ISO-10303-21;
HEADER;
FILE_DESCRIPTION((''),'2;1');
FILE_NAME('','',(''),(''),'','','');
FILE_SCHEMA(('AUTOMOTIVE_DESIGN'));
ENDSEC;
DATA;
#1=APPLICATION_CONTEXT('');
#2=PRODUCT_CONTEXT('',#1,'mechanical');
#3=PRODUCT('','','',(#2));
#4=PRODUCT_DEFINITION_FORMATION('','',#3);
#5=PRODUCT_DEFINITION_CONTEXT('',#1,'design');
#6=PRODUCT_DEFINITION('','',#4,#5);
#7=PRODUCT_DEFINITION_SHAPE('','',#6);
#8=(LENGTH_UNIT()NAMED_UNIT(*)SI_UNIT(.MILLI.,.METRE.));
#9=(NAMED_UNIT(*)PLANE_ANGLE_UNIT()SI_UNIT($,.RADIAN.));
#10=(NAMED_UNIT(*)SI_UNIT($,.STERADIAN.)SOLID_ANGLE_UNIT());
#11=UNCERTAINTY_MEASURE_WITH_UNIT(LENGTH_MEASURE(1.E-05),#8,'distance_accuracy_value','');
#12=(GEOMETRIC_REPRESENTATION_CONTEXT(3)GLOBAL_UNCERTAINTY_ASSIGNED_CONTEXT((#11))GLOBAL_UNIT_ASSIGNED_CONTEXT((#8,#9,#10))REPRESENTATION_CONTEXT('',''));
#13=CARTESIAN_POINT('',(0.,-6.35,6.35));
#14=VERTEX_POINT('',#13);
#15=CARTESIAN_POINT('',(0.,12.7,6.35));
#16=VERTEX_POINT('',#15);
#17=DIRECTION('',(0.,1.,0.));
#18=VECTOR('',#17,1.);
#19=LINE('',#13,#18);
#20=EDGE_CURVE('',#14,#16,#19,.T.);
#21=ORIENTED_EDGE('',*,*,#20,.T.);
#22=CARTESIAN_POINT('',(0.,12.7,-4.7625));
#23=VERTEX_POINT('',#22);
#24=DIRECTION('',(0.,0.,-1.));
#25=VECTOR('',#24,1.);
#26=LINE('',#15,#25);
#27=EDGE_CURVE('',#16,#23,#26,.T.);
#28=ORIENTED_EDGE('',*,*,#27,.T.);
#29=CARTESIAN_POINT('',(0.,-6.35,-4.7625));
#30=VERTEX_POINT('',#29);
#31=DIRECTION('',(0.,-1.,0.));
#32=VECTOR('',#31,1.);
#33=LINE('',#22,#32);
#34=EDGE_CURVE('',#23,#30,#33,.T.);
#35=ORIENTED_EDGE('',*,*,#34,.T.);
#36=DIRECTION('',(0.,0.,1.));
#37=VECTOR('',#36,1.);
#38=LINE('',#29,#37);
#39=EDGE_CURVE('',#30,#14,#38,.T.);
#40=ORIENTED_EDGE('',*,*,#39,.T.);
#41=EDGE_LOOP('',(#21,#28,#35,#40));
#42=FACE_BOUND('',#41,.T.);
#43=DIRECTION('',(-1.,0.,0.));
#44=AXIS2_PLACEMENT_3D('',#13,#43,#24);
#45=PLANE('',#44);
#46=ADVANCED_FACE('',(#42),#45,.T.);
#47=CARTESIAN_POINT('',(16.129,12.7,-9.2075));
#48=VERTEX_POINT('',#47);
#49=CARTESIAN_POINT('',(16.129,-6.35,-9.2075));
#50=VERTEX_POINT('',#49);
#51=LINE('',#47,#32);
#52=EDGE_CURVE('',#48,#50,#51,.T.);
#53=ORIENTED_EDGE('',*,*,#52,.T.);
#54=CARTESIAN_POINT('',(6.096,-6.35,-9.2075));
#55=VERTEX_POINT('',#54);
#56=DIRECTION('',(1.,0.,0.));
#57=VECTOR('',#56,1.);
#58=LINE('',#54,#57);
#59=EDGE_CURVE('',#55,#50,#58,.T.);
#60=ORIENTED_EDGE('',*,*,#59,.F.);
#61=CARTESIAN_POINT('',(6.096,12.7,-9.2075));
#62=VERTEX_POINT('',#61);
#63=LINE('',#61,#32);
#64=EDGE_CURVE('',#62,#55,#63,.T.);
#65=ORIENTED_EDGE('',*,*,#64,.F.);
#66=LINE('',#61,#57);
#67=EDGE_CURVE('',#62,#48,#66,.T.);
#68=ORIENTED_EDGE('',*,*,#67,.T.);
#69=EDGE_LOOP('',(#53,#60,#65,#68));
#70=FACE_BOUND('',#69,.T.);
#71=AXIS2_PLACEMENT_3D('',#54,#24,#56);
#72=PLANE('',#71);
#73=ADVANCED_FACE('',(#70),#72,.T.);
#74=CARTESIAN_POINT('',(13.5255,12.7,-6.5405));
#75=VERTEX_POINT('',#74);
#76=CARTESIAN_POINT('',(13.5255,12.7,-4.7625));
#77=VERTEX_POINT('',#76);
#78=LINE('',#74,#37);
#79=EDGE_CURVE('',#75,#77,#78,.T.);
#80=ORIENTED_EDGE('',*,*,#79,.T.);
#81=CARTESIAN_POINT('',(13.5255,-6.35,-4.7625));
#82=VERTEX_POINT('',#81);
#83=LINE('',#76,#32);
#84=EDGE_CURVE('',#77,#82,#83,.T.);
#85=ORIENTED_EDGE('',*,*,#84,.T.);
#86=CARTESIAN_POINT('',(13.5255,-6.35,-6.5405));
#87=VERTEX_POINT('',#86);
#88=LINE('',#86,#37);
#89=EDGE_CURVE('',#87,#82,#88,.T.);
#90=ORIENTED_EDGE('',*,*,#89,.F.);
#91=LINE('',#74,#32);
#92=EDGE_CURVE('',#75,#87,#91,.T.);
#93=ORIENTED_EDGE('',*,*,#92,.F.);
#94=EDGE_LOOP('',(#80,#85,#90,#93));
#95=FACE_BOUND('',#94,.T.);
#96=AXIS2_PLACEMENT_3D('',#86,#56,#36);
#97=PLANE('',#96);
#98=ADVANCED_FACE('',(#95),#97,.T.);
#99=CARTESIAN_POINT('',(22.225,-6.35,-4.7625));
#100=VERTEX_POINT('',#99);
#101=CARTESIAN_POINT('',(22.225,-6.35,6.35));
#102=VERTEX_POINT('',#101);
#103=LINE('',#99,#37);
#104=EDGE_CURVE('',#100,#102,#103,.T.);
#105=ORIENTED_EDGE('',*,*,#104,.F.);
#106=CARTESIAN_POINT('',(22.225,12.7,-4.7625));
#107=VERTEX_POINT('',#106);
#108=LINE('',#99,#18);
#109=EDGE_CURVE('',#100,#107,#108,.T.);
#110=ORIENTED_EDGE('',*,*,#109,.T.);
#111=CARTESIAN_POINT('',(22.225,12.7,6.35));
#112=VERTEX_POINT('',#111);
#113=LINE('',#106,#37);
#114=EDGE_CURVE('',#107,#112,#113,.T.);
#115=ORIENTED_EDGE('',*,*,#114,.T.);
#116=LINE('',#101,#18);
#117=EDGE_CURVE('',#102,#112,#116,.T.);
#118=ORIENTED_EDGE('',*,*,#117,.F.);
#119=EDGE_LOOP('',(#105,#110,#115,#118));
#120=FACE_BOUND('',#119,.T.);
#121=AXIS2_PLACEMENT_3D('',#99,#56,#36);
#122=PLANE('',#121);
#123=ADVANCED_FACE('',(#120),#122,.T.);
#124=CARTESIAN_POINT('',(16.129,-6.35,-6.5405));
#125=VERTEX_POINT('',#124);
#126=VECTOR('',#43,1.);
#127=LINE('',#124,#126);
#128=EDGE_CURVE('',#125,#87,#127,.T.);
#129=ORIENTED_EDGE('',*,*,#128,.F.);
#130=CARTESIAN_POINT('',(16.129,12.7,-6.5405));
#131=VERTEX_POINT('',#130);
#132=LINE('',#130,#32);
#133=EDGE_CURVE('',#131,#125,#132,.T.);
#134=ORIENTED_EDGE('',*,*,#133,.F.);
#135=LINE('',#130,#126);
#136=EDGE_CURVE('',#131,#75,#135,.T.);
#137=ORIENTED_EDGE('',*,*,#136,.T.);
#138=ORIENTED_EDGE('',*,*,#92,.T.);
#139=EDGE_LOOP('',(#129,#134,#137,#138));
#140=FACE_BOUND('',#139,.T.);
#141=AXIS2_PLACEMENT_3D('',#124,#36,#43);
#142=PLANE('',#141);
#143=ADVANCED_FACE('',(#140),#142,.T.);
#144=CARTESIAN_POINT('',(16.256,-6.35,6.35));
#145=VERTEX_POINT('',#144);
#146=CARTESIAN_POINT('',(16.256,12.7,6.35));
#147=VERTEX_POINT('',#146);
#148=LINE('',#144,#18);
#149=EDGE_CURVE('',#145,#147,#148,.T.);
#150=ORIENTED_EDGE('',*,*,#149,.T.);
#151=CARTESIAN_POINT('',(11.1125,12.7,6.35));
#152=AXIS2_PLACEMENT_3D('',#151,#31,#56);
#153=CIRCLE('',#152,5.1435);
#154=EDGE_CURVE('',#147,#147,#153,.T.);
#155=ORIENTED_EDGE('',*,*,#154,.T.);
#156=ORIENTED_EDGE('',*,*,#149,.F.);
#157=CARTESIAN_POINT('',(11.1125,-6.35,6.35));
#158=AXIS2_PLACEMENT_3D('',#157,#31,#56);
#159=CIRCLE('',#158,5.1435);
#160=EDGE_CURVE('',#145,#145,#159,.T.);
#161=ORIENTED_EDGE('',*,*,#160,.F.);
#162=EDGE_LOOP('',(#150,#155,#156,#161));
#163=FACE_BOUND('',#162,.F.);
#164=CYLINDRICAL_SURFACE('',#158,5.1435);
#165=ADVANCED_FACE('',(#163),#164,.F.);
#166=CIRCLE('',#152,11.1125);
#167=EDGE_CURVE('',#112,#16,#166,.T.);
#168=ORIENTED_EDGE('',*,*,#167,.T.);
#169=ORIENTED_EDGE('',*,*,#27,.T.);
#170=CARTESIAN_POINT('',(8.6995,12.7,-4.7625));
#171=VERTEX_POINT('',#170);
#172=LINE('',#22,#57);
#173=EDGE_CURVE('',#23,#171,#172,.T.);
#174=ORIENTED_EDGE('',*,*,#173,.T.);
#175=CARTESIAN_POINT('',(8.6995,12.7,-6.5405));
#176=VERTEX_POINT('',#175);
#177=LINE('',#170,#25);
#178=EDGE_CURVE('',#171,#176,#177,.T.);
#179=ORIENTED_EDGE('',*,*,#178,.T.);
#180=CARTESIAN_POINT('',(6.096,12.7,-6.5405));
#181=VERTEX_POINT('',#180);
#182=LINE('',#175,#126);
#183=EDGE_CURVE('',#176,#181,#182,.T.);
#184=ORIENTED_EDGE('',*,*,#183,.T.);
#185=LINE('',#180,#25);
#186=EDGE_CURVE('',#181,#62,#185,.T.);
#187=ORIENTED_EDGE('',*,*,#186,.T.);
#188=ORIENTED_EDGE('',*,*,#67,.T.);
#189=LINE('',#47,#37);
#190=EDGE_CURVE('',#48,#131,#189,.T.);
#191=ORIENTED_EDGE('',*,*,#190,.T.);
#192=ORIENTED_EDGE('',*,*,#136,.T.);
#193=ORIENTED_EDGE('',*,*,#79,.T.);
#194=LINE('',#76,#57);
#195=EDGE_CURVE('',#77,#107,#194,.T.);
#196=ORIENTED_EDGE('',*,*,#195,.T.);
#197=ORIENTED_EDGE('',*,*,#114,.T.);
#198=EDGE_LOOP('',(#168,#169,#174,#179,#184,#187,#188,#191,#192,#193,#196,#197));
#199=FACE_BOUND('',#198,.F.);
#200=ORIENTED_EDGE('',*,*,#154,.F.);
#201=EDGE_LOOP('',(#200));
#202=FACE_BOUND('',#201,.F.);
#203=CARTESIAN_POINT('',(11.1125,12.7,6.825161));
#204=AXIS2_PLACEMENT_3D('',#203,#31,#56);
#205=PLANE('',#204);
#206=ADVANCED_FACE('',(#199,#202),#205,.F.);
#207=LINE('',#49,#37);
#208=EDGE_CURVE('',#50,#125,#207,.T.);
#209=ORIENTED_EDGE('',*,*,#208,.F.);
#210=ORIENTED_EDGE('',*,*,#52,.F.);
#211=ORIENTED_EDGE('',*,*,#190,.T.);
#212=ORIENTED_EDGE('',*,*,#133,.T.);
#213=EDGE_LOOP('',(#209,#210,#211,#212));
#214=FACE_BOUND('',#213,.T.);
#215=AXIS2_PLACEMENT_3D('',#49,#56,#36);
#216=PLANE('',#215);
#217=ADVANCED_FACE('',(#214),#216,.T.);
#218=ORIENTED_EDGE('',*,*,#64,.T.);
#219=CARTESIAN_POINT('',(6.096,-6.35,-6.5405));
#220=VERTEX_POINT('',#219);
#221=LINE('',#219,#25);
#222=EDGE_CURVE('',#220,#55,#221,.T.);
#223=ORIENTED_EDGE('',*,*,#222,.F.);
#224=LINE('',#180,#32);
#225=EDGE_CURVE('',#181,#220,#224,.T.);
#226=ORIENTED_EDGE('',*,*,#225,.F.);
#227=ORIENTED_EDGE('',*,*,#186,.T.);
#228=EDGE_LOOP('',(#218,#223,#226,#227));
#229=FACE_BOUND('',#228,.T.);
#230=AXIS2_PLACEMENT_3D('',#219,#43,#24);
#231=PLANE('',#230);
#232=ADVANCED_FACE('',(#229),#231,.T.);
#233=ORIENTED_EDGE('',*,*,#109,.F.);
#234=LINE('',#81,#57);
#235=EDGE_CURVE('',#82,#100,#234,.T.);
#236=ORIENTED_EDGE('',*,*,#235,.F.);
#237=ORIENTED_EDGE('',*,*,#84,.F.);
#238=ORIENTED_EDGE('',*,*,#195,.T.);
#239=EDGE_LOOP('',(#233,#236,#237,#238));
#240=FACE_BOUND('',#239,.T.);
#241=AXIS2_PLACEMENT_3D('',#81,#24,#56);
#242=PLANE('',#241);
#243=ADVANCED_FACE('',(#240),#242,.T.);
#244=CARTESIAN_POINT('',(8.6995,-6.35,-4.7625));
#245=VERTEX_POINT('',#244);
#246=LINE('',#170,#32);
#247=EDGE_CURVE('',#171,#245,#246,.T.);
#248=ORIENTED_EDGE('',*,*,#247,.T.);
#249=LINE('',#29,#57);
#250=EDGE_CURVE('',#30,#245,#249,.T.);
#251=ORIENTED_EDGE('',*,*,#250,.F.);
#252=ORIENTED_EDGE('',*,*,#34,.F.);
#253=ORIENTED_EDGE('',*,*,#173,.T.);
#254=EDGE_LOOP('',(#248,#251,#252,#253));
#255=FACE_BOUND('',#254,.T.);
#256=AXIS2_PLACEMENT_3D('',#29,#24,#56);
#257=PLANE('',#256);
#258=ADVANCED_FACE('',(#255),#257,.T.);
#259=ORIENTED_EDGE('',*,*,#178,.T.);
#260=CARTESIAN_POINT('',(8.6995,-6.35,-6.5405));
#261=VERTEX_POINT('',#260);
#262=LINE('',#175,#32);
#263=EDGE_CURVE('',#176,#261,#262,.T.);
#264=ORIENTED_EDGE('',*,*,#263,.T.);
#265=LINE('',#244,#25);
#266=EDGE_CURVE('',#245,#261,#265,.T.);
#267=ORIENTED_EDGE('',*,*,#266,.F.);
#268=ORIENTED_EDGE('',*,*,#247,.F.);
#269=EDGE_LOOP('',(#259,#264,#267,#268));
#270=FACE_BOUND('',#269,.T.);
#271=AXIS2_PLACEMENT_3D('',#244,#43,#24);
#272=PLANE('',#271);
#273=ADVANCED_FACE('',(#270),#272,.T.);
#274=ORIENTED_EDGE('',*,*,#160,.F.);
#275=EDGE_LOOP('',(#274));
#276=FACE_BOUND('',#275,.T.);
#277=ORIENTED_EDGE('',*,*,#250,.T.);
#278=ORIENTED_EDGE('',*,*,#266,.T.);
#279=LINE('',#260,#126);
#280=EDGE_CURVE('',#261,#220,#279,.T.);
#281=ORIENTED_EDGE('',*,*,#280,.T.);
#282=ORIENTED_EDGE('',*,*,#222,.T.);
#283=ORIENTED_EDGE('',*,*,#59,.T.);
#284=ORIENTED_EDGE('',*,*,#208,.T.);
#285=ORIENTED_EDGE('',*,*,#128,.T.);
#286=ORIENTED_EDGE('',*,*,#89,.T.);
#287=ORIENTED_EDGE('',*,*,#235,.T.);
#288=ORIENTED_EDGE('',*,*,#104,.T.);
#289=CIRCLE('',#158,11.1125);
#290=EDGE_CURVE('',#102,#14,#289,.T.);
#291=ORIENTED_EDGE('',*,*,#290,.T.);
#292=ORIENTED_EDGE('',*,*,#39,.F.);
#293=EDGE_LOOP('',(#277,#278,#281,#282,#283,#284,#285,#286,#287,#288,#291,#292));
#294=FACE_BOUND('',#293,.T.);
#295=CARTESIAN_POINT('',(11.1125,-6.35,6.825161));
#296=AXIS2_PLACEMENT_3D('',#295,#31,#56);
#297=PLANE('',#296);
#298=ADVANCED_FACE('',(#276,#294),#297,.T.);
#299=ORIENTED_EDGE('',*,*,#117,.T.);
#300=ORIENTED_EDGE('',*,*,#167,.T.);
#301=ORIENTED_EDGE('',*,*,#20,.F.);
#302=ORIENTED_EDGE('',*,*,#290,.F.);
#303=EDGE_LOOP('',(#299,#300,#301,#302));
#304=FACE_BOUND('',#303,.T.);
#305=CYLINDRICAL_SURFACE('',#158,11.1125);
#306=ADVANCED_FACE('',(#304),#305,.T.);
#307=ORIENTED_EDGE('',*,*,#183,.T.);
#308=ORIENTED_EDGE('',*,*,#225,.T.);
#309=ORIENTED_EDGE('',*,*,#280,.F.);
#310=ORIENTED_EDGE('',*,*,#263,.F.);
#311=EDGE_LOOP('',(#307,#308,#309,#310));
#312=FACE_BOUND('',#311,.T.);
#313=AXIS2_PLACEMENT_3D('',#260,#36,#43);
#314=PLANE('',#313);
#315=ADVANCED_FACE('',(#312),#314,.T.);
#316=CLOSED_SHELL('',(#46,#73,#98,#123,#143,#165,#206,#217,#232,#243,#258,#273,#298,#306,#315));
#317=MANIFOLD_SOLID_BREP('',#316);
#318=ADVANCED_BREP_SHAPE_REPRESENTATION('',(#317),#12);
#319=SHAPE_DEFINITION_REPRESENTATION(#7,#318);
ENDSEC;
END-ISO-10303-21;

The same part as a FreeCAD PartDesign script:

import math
import FreeCAD as App
import Part
import Sketcher
Q = App.Units.Quantity


def add_polygon(sketch, points):
    """Adds a closed chain of lines whose ends are joined by coincident constraints."""
    first, n = sketch.GeometryCount, len(points)
    for a, b in zip(points, points[1:] + points[:1]):
        sketch.addGeometry(Part.LineSegment(App.Vector(*a, 0), App.Vector(*b, 0)), False)
    for i in range(n):
        sketch.addConstraint(Sketcher.Constraint("Coincident", first + i, 2, first + (i + 1) % n, 1))

doc = App.newDocument("Part")
body = doc.addObject("PartDesign::Body", "Body")

# Sketch on XZ plane
sketch1 = body.newObject("Sketcher::SketchObject", "Sketch")
sketch1.AttachmentSupport = (doc.getObject("XZ_Plane"), [""])
sketch1.MapMode = "FlatFace"
add_polygon(sketch1, [(22.2, 0), (0, 0), (0, -4.8), (8.7, -4.8), (8.7, -6.5), (6.1, -6.5), (6.1, -9.2), (16.1, -9.2), (16.1, -6.5), (13.5, -6.5), (13.5, -4.8), (22.2, -4.8)])  # lines 0-11
sketch1.addConstraint([
    Sketcher.Constraint("Horizontal", 0),
    Sketcher.Constraint("Vertical", 1),
    Sketcher.Constraint("Horizontal", 2),
    Sketcher.Constraint("Vertical", 3),
    Sketcher.Constraint("Horizontal", 4),
    Sketcher.Constraint("Vertical", 5),
    Sketcher.Constraint("Horizontal", 6),
    Sketcher.Constraint("Vertical", 7),
    Sketcher.Constraint("Horizontal", 8),
    Sketcher.Constraint("Vertical", 9),
    Sketcher.Constraint("Horizontal", 10),
    Sketcher.Constraint("Vertical", 11),
    Sketcher.Constraint("Coincident", 0, 2, -1, 1),
    Sketcher.Constraint("Horizontal", 4, 2, 7, 2),
    Sketcher.Constraint("Horizontal", 2, 2, 9, 2),
    Sketcher.Constraint("Equal", 4, 8),
    Sketcher.Constraint("Equal", 2, 10),
    Sketcher.Constraint("DistanceY", 3, 2, 3, 1, Q("0.07 in")),
    Sketcher.Constraint("DistanceX", 0, 2, 0, 1, Q("0.875 in")),
    Sketcher.Constraint("DistanceX", 6, 1, 6, 2, Q("0.395 in")),
    Sketcher.Constraint("DistanceY", 1, 2, 1, 1, Q("0.1875 in")),
    Sketcher.Constraint("DistanceY", 5, 2, 5, 1, Q("0.105 in")),
    Sketcher.Constraint("DistanceX", 3, 2, 8, 2, Q("0.19 in")),
])
pad1 = body.newObject("PartDesign::Pad", "Pad")
pad1.Profile = sketch1
pad1.Length = Q("0.25 in")

# Sketch on XZ plane
sketch2 = body.newObject("Sketcher::SketchObject", "Sketch001")
sketch2.AttachmentSupport = (doc.getObject("XZ_Plane"), [""])
sketch2.MapMode = "FlatFace"
sketch2.AttachmentOffset = App.Placement(App.Vector(0, 0, 0.25 * 25.4), App.Rotation())
sketch2.addGeometry([
    Part.LineSegment(App.Vector(0, 6.3, 0), App.Vector(0, -4.8, 0)),  # 0
    Part.LineSegment(App.Vector(0, -4.8, 0), App.Vector(8.7, -4.8, 0)),  # 1
    Part.LineSegment(App.Vector(8.7, -4.8, 0), App.Vector(8.7, -6.5, 0)),  # 2
    Part.LineSegment(App.Vector(8.7, -6.5, 0), App.Vector(6.1, -6.5, 0)),  # 3
    Part.LineSegment(App.Vector(6.1, -6.5, 0), App.Vector(6.1, -9.2, 0)),  # 4
    Part.LineSegment(App.Vector(6.1, -9.2, 0), App.Vector(16.1, -9.2, 0)),  # 5
    Part.LineSegment(App.Vector(16.1, -9.2, 0), App.Vector(16.1, -6.5, 0)),  # 6
    Part.LineSegment(App.Vector(16.1, -6.5, 0), App.Vector(13.5, -6.5, 0)),  # 7
    Part.LineSegment(App.Vector(13.5, -6.5, 0), App.Vector(13.5, -4.8, 0)),  # 8
    Part.LineSegment(App.Vector(13.5, -4.8, 0), App.Vector(22.2, -4.8, 0)),  # 9
    Part.LineSegment(App.Vector(22.2, -4.8, 0), App.Vector(22.2, 6.3, 0)),  # 10
    Part.ArcOfCircle(Part.Circle(App.Vector(11.1, 6.3, 0), App.Vector(0, 0, 1), 11.1), math.radians(0), math.radians(180)),  # 11
    Part.Circle(App.Vector(11.1, 6.3, 0), App.Vector(0, 0, 1), 5.1),  # 12
], False)
sketch2.addConstraint([
    Sketcher.Constraint("Coincident", 0, 2, 1, 1),
    Sketcher.Constraint("Coincident", 1, 2, 2, 1),
    Sketcher.Constraint("Coincident", 2, 2, 3, 1),
    Sketcher.Constraint("Coincident", 3, 2, 4, 1),
    Sketcher.Constraint("Coincident", 4, 2, 5, 1),
    Sketcher.Constraint("Coincident", 5, 2, 6, 1),
    Sketcher.Constraint("Coincident", 6, 2, 7, 1),
    Sketcher.Constraint("Coincident", 7, 2, 8, 1),
    Sketcher.Constraint("Coincident", 8, 2, 9, 1),
    Sketcher.Constraint("Coincident", 9, 2, 10, 1),
    Sketcher.Constraint("Tangent", 10, 2, 11, 1),
    Sketcher.Constraint("Tangent", 11, 2, 0, 1),
    Sketcher.Constraint("Vertical", 0),
    Sketcher.Constraint("Horizontal", 1),
    Sketcher.Constraint("Vertical", 2),
    Sketcher.Constraint("Horizontal", 3),
    Sketcher.Constraint("Vertical", 4),
    Sketcher.Constraint("Horizontal", 5),
    Sketcher.Constraint("Vertical", 6),
    Sketcher.Constraint("Horizontal", 7),
    Sketcher.Constraint("Vertical", 8),
    Sketcher.Constraint("Horizontal", 9),
    Sketcher.Constraint("Vertical", 10),
    Sketcher.Constraint("Coincident", 12, 3, 11, 3),
    Sketcher.Constraint("PointOnObject", 0, 2, -2),
    Sketcher.Constraint("Horizontal", 3, 2, 6, 2),
    Sketcher.Constraint("Horizontal", 1, 2, 8, 2),
    Sketcher.Constraint("Equal", 3, 7),
    Sketcher.Constraint("Equal", 1, 9),
    Sketcher.Constraint("Diameter", 12, Q("0.405 in")),
    Sketcher.Constraint("Radius", 11, Q("0.4375 in")),
    Sketcher.Constraint("DistanceY", 2, 2, 2, 1, Q("0.07 in")),
    Sketcher.Constraint("DistanceX", 5, 1, 5, 2, Q("0.395 in")),
    Sketcher.Constraint("DistanceY", 0, 2, 0, 1, Q("0.4375 in")),
    Sketcher.Constraint("DistanceY", 4, 2, 4, 1, Q("0.105 in")),
    Sketcher.Constraint("DistanceY", -1, 1, 11, 3, Q("0.25 in")),
    Sketcher.Constraint("DistanceX", 2, 2, 7, 2, Q("0.19 in")),
])
pad2 = body.newObject("PartDesign::Pad", "Pad001")
pad2.Profile = sketch2
pad2.Length = Q("0.75 in")
pad2.Reversed = True

doc.recompute()
